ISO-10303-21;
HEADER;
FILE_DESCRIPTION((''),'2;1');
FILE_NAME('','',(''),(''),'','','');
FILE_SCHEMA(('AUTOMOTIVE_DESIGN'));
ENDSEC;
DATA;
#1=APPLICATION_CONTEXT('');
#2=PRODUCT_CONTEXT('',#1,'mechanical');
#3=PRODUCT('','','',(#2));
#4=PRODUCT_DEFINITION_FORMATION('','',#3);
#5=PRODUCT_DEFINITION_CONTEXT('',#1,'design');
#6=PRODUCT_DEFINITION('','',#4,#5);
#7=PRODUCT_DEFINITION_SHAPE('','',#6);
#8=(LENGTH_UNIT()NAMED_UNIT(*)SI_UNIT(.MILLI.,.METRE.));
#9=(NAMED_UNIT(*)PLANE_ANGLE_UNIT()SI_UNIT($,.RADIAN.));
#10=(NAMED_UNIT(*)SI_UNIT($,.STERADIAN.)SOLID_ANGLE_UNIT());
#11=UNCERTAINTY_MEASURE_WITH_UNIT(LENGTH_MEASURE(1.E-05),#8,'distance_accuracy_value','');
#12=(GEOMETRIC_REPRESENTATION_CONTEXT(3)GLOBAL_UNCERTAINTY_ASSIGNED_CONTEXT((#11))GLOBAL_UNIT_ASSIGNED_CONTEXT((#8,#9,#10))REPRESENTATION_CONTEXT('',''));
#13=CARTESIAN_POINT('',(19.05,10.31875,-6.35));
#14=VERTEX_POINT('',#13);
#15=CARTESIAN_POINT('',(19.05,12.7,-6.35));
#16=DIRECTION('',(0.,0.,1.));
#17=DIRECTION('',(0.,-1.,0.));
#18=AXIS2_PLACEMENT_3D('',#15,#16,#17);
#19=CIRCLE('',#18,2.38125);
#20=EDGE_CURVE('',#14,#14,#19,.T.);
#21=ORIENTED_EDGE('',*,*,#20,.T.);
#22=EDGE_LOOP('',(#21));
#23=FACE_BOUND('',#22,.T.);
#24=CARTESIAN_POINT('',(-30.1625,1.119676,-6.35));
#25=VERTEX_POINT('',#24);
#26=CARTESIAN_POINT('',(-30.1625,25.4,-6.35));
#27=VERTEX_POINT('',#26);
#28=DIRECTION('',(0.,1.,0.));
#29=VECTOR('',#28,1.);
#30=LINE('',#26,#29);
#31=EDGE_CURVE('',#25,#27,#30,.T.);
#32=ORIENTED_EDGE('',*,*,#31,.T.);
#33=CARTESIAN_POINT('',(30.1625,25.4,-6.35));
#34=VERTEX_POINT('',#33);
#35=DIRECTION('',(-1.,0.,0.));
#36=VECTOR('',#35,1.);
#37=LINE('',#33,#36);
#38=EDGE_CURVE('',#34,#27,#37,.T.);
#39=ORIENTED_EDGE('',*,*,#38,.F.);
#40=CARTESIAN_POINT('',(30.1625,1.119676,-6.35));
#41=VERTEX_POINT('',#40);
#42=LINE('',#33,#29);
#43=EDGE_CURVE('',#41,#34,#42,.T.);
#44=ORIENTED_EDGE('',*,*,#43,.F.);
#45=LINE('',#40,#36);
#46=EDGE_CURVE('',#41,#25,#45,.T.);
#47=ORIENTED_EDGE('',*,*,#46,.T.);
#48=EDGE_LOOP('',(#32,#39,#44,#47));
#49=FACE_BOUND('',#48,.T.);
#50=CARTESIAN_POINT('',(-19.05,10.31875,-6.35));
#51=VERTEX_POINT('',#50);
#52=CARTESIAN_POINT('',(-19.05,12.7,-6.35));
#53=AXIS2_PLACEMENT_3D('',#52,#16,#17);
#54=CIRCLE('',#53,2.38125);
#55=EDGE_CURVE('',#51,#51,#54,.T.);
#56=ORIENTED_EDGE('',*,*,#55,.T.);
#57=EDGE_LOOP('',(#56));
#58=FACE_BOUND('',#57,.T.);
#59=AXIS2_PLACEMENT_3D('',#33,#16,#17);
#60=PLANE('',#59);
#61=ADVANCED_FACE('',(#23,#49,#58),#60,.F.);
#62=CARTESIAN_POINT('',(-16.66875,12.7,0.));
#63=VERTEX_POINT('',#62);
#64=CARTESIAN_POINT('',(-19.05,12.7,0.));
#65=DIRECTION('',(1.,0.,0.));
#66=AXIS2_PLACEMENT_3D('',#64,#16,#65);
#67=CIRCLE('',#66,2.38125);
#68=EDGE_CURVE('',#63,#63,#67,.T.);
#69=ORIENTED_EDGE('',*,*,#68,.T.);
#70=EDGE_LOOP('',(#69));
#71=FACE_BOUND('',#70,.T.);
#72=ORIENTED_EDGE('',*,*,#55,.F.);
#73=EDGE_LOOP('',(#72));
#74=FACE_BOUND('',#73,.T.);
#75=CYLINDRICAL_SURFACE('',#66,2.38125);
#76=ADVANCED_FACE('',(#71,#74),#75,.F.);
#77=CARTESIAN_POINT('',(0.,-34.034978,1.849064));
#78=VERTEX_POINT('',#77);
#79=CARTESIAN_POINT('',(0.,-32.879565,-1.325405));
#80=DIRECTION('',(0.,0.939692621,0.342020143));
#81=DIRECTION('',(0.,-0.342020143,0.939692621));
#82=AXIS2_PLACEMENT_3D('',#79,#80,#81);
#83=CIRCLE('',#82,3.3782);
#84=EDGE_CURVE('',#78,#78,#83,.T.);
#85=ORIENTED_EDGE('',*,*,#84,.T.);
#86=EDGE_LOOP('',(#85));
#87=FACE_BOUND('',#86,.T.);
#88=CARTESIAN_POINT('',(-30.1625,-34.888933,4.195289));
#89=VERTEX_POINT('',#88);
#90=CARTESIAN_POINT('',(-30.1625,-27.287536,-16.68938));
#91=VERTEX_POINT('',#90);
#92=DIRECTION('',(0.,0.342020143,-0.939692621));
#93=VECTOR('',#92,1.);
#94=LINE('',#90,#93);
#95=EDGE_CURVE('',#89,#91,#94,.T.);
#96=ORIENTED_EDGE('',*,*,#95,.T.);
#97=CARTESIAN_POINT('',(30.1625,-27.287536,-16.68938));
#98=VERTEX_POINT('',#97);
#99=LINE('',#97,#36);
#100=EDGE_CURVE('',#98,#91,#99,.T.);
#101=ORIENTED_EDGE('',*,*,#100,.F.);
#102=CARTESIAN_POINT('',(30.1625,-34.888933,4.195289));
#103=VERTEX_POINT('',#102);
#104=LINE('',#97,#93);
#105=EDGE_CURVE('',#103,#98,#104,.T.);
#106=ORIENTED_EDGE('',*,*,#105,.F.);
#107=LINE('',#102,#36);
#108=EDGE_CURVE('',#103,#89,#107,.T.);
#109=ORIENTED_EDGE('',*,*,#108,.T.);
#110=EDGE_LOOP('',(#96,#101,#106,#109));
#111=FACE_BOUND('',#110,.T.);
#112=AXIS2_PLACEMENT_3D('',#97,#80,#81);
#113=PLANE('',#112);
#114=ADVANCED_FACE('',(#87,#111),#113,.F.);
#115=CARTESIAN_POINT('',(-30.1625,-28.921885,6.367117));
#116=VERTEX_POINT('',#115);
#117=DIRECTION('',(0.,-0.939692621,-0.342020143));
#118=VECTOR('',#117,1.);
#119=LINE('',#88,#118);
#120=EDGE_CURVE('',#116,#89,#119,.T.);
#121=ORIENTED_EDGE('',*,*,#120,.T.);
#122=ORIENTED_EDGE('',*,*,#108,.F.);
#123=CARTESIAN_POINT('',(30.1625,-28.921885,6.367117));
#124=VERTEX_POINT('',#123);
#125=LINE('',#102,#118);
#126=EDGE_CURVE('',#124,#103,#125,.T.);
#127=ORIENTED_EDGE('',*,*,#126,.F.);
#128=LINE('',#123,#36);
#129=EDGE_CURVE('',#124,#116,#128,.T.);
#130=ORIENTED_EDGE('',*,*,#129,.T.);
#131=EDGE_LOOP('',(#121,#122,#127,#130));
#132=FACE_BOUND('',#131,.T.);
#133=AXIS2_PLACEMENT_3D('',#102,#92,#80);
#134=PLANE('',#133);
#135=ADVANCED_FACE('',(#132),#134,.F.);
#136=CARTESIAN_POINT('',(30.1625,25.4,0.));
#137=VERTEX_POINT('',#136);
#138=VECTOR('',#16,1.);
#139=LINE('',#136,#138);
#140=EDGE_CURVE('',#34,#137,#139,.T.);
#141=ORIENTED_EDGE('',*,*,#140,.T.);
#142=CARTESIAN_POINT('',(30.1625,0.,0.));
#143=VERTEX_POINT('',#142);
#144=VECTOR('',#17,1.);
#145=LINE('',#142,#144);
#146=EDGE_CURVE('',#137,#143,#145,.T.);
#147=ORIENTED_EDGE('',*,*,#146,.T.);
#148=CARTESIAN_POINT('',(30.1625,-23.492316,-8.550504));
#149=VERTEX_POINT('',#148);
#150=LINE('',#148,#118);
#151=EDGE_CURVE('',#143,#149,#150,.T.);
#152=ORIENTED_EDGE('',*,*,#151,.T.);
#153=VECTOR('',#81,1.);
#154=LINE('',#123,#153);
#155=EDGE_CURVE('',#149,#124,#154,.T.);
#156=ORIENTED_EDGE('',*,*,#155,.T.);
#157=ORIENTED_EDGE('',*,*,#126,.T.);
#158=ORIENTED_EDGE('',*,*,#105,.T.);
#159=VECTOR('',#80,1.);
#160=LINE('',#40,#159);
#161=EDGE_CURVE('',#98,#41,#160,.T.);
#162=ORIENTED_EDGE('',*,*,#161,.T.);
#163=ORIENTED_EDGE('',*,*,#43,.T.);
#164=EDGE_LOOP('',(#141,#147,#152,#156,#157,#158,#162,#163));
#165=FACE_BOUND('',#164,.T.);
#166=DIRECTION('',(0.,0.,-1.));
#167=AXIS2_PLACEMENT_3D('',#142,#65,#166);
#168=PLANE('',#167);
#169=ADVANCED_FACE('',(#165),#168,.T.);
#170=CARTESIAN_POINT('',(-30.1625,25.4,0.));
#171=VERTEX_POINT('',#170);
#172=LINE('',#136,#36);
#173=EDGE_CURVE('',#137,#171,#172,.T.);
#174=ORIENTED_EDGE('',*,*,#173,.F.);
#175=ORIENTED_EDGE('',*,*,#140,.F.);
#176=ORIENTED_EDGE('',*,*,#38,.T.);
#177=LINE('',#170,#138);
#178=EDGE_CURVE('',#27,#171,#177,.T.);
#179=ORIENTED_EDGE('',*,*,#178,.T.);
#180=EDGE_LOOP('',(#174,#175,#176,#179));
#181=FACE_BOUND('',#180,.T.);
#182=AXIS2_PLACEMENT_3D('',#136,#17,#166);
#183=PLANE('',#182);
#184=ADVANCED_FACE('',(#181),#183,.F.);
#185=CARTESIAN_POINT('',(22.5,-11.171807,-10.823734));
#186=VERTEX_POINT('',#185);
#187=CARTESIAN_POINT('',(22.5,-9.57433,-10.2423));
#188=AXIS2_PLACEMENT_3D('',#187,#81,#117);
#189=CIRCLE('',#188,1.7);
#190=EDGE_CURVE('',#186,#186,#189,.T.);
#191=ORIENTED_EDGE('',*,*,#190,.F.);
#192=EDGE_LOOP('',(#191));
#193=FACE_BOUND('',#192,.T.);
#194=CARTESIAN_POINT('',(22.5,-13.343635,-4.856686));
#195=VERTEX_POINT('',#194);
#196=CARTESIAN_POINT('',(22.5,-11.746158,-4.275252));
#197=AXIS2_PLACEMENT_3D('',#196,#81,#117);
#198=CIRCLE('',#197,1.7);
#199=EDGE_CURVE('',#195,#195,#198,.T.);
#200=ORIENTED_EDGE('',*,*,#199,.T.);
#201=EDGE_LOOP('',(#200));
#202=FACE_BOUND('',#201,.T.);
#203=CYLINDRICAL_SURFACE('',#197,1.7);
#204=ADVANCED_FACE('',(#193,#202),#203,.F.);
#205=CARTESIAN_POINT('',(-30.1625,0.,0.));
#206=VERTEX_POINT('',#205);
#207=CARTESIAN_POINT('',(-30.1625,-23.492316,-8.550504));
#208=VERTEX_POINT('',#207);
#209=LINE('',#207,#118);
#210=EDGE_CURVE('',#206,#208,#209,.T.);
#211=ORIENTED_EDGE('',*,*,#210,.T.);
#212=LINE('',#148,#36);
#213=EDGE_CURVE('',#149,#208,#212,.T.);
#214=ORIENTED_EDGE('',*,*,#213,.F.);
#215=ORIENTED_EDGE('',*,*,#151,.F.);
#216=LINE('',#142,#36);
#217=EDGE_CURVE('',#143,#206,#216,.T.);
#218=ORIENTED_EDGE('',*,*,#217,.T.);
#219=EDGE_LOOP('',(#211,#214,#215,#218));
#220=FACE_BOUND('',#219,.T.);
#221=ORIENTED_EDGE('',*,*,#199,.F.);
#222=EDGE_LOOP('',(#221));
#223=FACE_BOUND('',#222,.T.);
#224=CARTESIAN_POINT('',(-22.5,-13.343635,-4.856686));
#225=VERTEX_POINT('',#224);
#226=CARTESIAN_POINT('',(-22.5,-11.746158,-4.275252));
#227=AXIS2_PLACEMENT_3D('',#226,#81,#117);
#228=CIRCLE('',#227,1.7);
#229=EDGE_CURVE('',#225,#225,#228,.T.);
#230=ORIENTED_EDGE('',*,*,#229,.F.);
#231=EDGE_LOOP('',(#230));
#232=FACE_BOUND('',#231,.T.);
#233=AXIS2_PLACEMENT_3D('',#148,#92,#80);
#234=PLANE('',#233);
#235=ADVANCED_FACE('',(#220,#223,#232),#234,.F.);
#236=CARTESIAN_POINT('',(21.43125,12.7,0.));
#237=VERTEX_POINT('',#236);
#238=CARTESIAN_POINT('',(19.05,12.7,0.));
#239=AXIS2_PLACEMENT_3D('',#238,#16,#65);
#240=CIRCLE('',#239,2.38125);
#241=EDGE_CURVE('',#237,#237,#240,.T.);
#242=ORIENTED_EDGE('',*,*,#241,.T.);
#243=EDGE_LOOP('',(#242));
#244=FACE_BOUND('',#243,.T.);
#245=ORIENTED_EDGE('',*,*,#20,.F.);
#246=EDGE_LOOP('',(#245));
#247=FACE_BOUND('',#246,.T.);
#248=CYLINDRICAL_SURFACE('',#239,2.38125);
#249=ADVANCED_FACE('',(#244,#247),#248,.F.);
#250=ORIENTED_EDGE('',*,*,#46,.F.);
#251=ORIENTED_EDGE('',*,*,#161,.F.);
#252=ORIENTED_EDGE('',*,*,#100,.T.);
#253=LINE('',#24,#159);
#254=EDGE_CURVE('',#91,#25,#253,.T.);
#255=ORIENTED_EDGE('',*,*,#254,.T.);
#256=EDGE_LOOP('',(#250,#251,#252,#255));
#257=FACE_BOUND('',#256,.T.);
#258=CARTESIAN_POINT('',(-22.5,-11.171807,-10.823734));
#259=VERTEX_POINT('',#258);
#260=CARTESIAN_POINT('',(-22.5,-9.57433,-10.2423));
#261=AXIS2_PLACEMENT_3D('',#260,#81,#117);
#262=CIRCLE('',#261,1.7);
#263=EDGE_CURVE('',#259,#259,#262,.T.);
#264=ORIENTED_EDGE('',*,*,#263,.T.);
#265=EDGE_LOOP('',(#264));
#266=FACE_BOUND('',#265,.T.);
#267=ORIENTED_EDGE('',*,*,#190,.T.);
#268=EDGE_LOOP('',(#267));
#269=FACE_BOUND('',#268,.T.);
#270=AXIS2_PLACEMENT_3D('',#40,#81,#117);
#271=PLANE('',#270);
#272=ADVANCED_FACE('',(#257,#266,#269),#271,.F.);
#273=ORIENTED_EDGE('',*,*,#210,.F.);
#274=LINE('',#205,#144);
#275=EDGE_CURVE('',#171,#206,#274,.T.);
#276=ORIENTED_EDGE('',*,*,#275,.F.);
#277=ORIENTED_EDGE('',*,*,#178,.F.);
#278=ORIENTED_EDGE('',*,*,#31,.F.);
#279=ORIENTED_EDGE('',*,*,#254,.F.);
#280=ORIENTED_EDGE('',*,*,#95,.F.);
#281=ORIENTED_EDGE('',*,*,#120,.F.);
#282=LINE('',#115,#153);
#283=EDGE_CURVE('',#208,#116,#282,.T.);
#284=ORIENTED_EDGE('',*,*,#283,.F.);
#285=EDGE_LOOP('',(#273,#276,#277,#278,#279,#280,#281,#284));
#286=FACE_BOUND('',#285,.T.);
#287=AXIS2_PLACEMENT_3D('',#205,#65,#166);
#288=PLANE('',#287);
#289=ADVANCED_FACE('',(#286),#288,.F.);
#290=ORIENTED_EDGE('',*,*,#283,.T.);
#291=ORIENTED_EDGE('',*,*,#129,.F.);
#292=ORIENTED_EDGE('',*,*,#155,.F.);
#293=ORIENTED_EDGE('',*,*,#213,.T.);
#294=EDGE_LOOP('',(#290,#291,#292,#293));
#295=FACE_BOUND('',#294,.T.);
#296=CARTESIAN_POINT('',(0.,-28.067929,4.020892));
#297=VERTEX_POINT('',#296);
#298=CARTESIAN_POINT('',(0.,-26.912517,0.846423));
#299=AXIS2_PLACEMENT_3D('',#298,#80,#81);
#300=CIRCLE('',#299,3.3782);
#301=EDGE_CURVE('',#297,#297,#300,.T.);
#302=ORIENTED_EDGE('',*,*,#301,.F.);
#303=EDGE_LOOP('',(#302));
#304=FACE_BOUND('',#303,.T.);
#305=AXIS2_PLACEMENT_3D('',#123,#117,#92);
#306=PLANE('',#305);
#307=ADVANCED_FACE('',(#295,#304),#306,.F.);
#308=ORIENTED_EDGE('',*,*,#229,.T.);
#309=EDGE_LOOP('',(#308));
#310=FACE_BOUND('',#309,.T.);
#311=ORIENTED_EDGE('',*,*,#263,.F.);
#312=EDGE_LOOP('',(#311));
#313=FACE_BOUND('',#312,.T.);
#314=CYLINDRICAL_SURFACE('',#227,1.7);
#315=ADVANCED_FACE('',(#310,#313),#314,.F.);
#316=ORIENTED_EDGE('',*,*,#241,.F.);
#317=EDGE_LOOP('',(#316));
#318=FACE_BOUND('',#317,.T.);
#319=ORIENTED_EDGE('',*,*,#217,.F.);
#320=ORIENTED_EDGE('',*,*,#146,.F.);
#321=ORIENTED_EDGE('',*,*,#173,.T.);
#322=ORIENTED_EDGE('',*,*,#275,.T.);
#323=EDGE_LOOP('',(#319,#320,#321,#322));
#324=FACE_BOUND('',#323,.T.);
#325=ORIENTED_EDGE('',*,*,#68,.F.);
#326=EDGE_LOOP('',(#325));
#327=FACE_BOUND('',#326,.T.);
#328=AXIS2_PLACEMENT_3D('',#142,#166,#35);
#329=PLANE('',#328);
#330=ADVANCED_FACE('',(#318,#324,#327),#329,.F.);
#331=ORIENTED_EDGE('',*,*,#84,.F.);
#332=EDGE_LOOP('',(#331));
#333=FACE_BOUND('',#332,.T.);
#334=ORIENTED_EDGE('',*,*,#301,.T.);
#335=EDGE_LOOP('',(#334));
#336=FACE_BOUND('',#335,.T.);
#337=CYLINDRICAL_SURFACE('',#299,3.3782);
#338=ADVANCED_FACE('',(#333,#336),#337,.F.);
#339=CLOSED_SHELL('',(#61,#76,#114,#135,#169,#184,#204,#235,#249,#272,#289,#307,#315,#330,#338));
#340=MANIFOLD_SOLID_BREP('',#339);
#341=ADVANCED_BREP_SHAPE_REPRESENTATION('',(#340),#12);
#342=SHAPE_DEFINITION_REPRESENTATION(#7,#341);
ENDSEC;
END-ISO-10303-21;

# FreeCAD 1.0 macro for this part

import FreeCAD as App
import Part
import Sketcher
Q = App.Units.Quantity

doc = App.newDocument("Part")
body = doc.addObject("PartDesign::Body", "Body")

# Sketch on YZ plane
sketch1 = body.newObject("Sketcher::SketchObject", "Sketch")
sketch1.AttachmentSupport = (doc.getObject("YZ_Plane"), [""])
sketch1.MapMode = "FlatFace"
sketch1.addGeometry(Part.LineSegment(App.Vector(25, 0, 0), App.Vector(0, 0, 0)), False)
sketch1.addGeometry(Part.LineSegment(App.Vector(0, 0, 0), App.Vector(-23, -9, 0)), False)
sketch1.addGeometry(Part.LineSegment(App.Vector(-23, -9, 0), App.Vector(-29, 6, 0)), False)
sketch1.addGeometry(Part.LineSegment(App.Vector(-29, 6, 0), App.Vector(-35, 4, 0)), False)
sketch1.addGeometry(Part.LineSegment(App.Vector(-35, 4, 0), App.Vector(-27, -17, 0)), False)
sketch1.addGeometry(Part.LineSegment(App.Vector(-27, -17, 0), App.Vector(1, -6, 0)), False)
sketch1.addGeometry(Part.LineSegment(App.Vector(1, -6, 0), App.Vector(25, -6, 0)), False)
sketch1.addGeometry(Part.LineSegment(App.Vector(25, -6, 0), App.Vector(25, 0, 0)), False)
sketch1.addConstraint(Sketcher.Constraint("Coincident", 0, 2, 1, 1))
sketch1.addConstraint(Sketcher.Constraint("Coincident", 1, 2, 2, 1))
sketch1.addConstraint(Sketcher.Constraint("Coincident", 2, 2, 3, 1))
sketch1.addConstraint(Sketcher.Constraint("Coincident", 3, 2, 4, 1))
sketch1.addConstraint(Sketcher.Constraint("Coincident", 4, 2, 5, 1))
sketch1.addConstraint(Sketcher.Constraint("Coincident", 5, 2, 6, 1))
sketch1.addConstraint(Sketcher.Constraint("Coincident", 6, 2, 7, 1))
sketch1.addConstraint(Sketcher.Constraint("Coincident", 7, 2, 0, 1))
sketch1.addConstraint(Sketcher.Constraint("Horizontal", 0))
sketch1.addConstraint(Sketcher.Constraint("Horizontal", 6))
sketch1.addConstraint(Sketcher.Constraint("Vertical", 7))
sketch1.addConstraint(Sketcher.Constraint("Coincident", 0, 2, -1, 1))
sketch1.addConstraint(Sketcher.Constraint("Perpendicular", 1, 2))
sketch1.addConstraint(Sketcher.Constraint("Perpendicular", 2, 3))
sketch1.addConstraint(Sketcher.Constraint("Perpendicular", 3, 4))
sketch1.addConstraint(Sketcher.Constraint("Perpendicular", 4, 5))
sketch1.addConstraint(Sketcher.Constraint("DistanceX", 0, 2, 0, 1, Q("1 in")))
sketch1.addConstraint(Sketcher.Constraint("Angle", 1, Q("-160 deg")))
sketch1.addConstraint(Sketcher.Constraint("DistanceY", 7, 1, 7, 2, Q("0.25 in")))
sketch1.addConstraint(Sketcher.Constraint("Distance", 3, Q("0.25 in")))
sketch1.addConstraint(Sketcher.Constraint("Distance", 2, Q("0.625 in")))
sketch1.addConstraint(Sketcher.Constraint("Distance", 4, Q("0.875 in")))
sketch1.addConstraint(Sketcher.Constraint("Distance", 1, 25.0))
pad1 = body.newObject("PartDesign::Pad", "Pad")
pad1.Profile = sketch1
pad1.Length = Q("2.375 in")
pad1.Midplane = True

# Sketch on an angled plane
sketch2 = body.newObject("Sketcher::SketchObject", "Sketch001")
sketch2.Placement = App.Placement(App.Vector(0, -23.492316, -8.550504), App.Rotation(App.Vector(1, 0, 0), App.Vector(0, 0.342020143, -0.939692621), App.Vector(0, 0.939692621, 0.342020143), "ZXY"))
sketch2.addGeometry(Part.Circle(App.Vector(0, -10, 0), App.Vector(0, 0, 1), 3.4), False)
sketch2.addConstraint(Sketcher.Constraint("PointOnObject", 0, 3, -2))
sketch2.addConstraint(Sketcher.Constraint("Diameter", 0, Q("0.266 in")))
sketch2.addConstraint(Sketcher.Constraint("DistanceY", 0, 3, -1, 1, 10.0))
doc.recompute()
hole = body.newObject("PartDesign::Hole", "Hole")
hole.Profile = sketch2
hole.ThreadType = "None"
hole.Diameter = Q("0.266 in")
hole.DepthType = "ThroughAll"

# Sketch on an angled plane
sketch3 = body.newObject("Sketcher::SketchObject", "Sketch002")
sketch3.Placement = App.Placement(App.Vector(0, 0, 0), App.Rotation(App.Vector(1, 0, 0), App.Vector(0, 0.939692621, 0.342020143), App.Vector(0, -0.342020143, 0.939692621), "ZXY"))
sketch3.addGeometry(Part.Circle(App.Vector(-22.5, -12.5, 0), App.Vector(0, 0, 1), 1.7), False)
sketch3.addGeometry(Part.Circle(App.Vector(22.5, -12.5, 0), App.Vector(0, 0, 1), 1.7), False)
sketch3.addConstraint(Sketcher.Constraint("Equal", 0, 1))
sketch3.addConstraint(Sketcher.Constraint("Symmetric", 0, 3, 1, 3, -2))
sketch3.addConstraint(Sketcher.Constraint("Diameter", 0, 3.4))
sketch3.addConstraint(Sketcher.Constraint("DistanceX", 0, 3, -1, 1, 22.5))
sketch3.addConstraint(Sketcher.Constraint("DistanceY", 0, 3, -1, 1, 12.5))
doc.recompute()
hole2 = body.newObject("PartDesign::Hole", "Hole001")
hole2.Profile = sketch3
hole2.ThreadType = "None"
hole2.Diameter = 3.4
hole2.DepthType = "ThroughAll"

# Sketch on XY plane
sketch4 = body.newObject("Sketcher::SketchObject", "Sketch003")
sketch4.AttachmentSupport = (doc.getObject("XY_Plane"), [""])
sketch4.MapMode = "FlatFace"
sketch4.addGeometry(Part.Circle(App.Vector(-19.1, 12.7, 0), App.Vector(0, 0, 1), 2.4), False)
sketch4.addGeometry(Part.Circle(App.Vector(19.1, 12.7, 0), App.Vector(0, 0, 1), 2.4), False)
sketch4.addConstraint(Sketcher.Constraint("Equal", 0, 1))
sketch4.addConstraint(Sketcher.Constraint("Symmetric", 0, 3, 1, 3, -2))
sketch4.addConstraint(Sketcher.Constraint("Diameter", 0, Q("0.1875 in")))
sketch4.addConstraint(Sketcher.Constraint("DistanceY", -1, 1, 0, 3, Q("0.5 in")))
sketch4.addConstraint(Sketcher.Constraint("DistanceX", 0, 3, 1, 3, Q("1.5 in")))
doc.recompute()
hole3 = body.newObject("PartDesign::Hole", "Hole002")
hole3.Profile = sketch4
hole3.ThreadType = "None"
hole3.Diameter = Q("0.1875 in")
hole3.DepthType = "ThroughAll"

doc.recompute()
